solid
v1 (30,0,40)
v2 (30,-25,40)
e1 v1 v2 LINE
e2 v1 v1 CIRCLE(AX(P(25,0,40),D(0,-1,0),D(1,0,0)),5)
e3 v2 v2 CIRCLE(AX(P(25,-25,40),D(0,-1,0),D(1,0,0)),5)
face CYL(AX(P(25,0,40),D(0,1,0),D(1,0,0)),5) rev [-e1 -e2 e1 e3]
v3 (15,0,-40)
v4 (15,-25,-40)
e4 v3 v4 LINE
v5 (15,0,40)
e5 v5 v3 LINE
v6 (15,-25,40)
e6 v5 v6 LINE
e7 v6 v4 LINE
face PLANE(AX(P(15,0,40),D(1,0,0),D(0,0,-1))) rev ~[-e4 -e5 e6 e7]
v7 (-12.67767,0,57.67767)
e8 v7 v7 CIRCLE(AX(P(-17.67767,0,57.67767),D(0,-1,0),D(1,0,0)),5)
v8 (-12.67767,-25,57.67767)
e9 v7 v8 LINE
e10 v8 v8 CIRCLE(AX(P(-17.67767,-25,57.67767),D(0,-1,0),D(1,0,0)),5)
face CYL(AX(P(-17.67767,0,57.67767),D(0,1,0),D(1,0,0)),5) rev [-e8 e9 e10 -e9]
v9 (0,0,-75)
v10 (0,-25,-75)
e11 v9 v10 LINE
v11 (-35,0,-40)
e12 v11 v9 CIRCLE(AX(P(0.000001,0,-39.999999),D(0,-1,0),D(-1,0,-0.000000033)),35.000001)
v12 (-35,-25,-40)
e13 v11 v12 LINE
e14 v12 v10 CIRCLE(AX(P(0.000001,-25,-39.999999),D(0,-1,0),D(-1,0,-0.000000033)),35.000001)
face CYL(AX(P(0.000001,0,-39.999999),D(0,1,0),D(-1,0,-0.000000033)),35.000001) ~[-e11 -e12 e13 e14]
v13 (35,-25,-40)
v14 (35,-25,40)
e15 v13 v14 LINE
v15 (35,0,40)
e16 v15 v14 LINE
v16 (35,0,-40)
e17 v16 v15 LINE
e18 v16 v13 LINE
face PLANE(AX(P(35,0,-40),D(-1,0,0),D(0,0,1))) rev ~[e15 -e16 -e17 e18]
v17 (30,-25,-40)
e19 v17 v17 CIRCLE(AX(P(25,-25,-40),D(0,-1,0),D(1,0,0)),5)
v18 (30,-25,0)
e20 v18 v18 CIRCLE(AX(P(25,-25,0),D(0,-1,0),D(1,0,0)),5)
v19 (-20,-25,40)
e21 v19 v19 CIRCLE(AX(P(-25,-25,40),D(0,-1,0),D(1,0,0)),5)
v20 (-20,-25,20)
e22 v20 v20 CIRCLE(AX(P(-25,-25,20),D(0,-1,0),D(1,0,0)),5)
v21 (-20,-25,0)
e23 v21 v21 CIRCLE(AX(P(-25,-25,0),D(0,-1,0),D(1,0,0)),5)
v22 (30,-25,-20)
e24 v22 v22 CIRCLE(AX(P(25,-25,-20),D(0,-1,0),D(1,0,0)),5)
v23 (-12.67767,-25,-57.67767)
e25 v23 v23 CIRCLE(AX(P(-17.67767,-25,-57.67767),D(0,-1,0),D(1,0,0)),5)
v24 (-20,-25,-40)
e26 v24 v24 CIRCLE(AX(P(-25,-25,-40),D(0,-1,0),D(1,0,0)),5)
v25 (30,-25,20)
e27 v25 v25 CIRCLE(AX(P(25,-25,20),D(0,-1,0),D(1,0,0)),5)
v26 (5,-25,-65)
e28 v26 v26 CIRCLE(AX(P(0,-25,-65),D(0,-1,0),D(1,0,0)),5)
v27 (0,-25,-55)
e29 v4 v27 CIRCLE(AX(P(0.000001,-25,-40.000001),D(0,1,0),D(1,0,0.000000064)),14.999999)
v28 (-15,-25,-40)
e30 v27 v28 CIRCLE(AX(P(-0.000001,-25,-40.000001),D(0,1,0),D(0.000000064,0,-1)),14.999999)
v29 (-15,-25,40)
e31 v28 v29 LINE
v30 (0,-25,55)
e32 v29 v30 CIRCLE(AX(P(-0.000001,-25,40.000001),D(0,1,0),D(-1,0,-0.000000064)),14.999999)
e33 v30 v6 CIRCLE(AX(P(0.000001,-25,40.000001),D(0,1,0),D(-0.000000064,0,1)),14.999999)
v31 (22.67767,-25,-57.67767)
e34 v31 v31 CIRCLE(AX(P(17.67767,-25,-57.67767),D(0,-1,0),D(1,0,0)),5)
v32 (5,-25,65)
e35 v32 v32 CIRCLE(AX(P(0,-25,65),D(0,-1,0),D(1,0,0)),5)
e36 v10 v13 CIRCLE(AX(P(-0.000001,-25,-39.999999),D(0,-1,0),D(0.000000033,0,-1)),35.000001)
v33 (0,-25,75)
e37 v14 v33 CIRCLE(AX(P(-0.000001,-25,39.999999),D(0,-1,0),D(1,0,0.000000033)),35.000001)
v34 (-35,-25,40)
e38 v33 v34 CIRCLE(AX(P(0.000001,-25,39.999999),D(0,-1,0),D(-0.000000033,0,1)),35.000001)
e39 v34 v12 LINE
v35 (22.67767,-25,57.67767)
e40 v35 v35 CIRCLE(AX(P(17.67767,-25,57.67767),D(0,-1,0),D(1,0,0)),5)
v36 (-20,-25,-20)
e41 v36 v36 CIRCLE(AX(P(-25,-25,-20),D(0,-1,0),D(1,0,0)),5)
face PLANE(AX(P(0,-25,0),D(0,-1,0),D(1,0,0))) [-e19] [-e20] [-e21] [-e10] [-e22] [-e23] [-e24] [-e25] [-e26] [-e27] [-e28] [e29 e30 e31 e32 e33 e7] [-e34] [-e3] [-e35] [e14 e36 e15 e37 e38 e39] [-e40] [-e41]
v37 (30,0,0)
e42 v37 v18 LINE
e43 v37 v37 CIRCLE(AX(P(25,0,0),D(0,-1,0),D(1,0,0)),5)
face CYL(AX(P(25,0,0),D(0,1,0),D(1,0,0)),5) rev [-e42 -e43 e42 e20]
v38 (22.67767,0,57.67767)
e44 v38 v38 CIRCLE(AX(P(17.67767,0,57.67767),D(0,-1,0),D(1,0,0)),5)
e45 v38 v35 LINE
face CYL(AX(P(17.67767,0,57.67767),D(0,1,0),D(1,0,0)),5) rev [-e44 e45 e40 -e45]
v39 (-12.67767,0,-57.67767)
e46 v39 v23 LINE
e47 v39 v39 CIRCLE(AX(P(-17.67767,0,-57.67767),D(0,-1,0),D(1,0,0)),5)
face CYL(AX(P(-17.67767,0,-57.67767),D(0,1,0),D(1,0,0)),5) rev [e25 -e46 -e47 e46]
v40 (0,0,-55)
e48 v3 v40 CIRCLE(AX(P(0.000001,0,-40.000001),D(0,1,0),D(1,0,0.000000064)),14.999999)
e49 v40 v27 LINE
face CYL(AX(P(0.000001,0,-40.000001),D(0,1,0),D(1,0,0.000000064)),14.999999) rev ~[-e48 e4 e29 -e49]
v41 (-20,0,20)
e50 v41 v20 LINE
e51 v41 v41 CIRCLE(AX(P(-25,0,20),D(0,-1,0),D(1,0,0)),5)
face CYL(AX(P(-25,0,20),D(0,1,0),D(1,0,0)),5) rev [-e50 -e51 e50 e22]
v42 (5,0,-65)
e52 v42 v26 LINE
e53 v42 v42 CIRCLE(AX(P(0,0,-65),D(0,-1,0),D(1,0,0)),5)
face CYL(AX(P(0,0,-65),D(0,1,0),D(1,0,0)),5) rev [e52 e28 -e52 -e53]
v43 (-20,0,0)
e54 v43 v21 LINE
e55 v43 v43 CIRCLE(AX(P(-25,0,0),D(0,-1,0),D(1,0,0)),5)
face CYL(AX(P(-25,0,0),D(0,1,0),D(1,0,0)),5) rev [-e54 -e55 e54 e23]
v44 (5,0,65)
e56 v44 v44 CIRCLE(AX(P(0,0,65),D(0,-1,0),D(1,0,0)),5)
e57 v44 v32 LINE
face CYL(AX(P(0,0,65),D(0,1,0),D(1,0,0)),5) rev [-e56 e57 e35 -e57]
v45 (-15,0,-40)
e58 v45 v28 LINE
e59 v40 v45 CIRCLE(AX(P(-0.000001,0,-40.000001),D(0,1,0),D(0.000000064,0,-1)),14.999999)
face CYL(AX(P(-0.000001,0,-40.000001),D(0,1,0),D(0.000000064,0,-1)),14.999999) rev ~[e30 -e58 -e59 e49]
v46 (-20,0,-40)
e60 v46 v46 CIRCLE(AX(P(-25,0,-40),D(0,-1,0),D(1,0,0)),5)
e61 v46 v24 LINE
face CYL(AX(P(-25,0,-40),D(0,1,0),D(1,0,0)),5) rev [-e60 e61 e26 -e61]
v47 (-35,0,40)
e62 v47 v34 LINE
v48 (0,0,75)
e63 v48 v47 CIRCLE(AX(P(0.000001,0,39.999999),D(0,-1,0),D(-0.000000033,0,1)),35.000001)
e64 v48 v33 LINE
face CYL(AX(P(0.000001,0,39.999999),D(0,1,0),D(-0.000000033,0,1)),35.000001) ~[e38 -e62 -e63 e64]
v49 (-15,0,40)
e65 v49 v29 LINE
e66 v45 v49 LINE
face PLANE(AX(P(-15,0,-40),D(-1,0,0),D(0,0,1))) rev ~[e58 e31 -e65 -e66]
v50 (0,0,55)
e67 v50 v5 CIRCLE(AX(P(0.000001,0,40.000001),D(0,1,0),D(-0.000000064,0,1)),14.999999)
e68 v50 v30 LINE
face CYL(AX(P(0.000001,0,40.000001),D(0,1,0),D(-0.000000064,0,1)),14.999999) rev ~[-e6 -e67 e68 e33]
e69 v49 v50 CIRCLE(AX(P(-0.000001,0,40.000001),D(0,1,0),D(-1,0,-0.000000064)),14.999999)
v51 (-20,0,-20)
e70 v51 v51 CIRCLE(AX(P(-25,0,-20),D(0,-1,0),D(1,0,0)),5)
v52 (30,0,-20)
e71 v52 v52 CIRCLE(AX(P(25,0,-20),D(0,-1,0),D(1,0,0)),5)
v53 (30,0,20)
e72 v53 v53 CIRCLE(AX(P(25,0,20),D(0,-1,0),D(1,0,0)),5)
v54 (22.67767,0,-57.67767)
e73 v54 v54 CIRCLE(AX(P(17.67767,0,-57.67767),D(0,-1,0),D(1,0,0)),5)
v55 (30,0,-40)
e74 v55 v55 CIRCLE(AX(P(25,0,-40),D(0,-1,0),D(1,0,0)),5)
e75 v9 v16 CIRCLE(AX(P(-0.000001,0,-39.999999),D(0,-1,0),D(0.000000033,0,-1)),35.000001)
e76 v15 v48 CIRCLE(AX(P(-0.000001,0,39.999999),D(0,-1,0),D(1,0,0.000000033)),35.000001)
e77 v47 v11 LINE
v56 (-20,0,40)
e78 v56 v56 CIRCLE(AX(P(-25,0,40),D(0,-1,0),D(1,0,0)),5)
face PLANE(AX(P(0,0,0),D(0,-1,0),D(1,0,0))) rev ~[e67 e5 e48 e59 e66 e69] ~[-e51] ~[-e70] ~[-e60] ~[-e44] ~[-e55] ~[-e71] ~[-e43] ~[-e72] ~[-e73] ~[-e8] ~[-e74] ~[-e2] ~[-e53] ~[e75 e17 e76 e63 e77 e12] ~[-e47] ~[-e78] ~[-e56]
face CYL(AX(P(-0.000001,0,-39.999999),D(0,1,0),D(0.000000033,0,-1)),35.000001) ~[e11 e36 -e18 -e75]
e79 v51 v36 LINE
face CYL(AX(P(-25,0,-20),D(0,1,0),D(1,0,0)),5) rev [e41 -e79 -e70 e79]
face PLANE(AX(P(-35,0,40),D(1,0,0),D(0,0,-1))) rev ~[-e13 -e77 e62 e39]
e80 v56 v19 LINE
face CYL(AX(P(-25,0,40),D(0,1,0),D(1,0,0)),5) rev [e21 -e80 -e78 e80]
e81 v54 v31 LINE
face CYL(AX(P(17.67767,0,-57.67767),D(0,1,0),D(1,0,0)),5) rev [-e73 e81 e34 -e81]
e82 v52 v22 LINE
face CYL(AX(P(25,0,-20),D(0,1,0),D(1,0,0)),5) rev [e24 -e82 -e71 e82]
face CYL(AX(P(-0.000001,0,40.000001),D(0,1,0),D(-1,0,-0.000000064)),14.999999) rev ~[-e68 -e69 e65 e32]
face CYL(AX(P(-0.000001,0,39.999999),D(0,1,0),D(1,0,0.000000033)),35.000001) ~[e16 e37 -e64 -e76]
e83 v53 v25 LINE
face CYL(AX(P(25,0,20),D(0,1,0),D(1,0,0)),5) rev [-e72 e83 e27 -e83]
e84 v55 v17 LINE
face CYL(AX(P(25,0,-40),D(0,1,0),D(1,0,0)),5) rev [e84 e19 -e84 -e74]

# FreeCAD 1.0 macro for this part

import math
import FreeCAD as App
import Part
import Sketcher
from FreeCAD import Vector
Q = App.Units.Quantity

doc = App.newDocument("Part")
params = doc.addObject("Spreadsheet::Sheet", "Params")
for row, (alias, value) in enumerate([
    ("sketch1_diameter", "10 mm"),
    ("sketch1_radius", "35.000001 mm"),
    ("sketch1_radius2", "14.999999 mm"),
    ("sketch1_height", "80 mm"),
    ("pad1_length", "25 mm"),
], start=1):
    params.set(f"A{row}", alias)
    params.set(f"B{row}", "=" + value)
    params.setAlias(f"B{row}", alias)

body = doc.addObject("PartDesign::Body", "Body")

sketch1 = body.newObject("Sketcher::SketchObject", "Sketch")
sketch1.AttachmentSupport = (doc.getObject("XZ_Plane"), [""])
sketch1.MapMode = "FlatFace"
sketch1.addGeometry([
    Part.ArcOfCircle(Part.Circle(Vector(0, 40, 0), Vector(0, 0, 1), 35), math.radians(90), math.radians(180)),
    Part.LineSegment(Vector(-35, 40, 0), Vector(-35, -40, 0)),
    Part.ArcOfCircle(Part.Circle(Vector(0, -40, 0), Vector(0, 0, 1), 35), math.radians(-180), math.radians(-90)),
    Part.ArcOfCircle(Part.Circle(Vector(0, -40, 0), Vector(0, 0, 1), 35), math.radians(-90), math.radians(0)),
    Part.LineSegment(Vector(35, -40, 0), Vector(35, 40, 0)),
    Part.ArcOfCircle(Part.Circle(Vector(0, 40, 0), Vector(0, 0, 1), 35), math.radians(0), math.radians(90)),
    Part.Circle(Vector(-18, -58, 0), Vector(0, 0, 1), 5),
    Part.Circle(Vector(-25, -40, 0), Vector(0, 0, 1), 5),
    Part.Circle(Vector(-25, -20, 0), Vector(0, 0, 1), 5),
    Part.Circle(Vector(0, -65, 0), Vector(0, 0, 1), 5),
    Part.Circle(Vector(18, -58, 0), Vector(0, 0, 1), 5),
    Part.Circle(Vector(25, -40, 0), Vector(0, 0, 1), 5),
    Part.Circle(Vector(25, -20, 0), Vector(0, 0, 1), 5),
    Part.Circle(Vector(-25, 0, 0), Vector(0, 0, 1), 5),
    Part.Circle(Vector(-25, 20, 0), Vector(0, 0, 1), 5),
    Part.Circle(Vector(-25, 40, 0), Vector(0, 0, 1), 5),
    Part.Circle(Vector(-18, 58, 0), Vector(0, 0, 1), 5),
    Part.LineSegment(Vector(-15, -40, 0), Vector(-15, 40, 0)),
    Part.ArcOfCircle(Part.Circle(Vector(0, 40, 0), Vector(0, 0, 1), 15), math.radians(90), math.radians(180)),
    Part.ArcOfCircle(Part.Circle(Vector(0, 40, 0), Vector(0, 0, 1), 15), math.radians(0), math.radians(90)),
    Part.LineSegment(Vector(15, 40, 0), Vector(15, -40, 0)),
    Part.ArcOfCircle(Part.Circle(Vector(0, -40, 0), Vector(0, 0, 1), 15), math.radians(-90), math.radians(0)),
    Part.ArcOfCircle(Part.Circle(Vector(0, -40, 0), Vector(0, 0, 1), 15), math.radians(180), math.radians(270)),
    Part.Circle(Vector(25, 0, 0), Vector(0, 0, 1), 5),
    Part.Circle(Vector(25, 20, 0), Vector(0, 0, 1), 5),
    Part.Circle(Vector(0, 65, 0), Vector(0, 0, 1), 5),
    Part.Circle(Vector(25, 40, 0), Vector(0, 0, 1), 5),
    Part.Circle(Vector(18, 58, 0), Vector(0, 0, 1), 5),
], False)
sketch1.addConstraint([
    Sketcher.Constraint("Tangent", 0, 2, 1, 1),
    Sketcher.Constraint("Tangent", 1, 2, 2, 1),
    Sketcher.Constraint("Tangent", 2, 2, 3, 1),
    Sketcher.Constraint("Tangent", 3, 2, 4, 1),
    Sketcher.Constraint("Tangent", 4, 2, 5, 1),
    Sketcher.Constraint("Tangent", 5, 2, 0, 1),
    Sketcher.Constraint("Tangent", 17, 2, 18, 2),
    Sketcher.Constraint("Tangent", 18, 1, 19, 2),
    Sketcher.Constraint("Tangent", 19, 1, 20, 1),
    Sketcher.Constraint("Tangent", 20, 2, 21, 2),
    Sketcher.Constraint("Tangent", 21, 1, 22, 2),
    Sketcher.Constraint("Tangent", 22, 1, 17, 1),
    Sketcher.Constraint("Vertical", 1),
    Sketcher.Constraint("Vertical", 4),
    Sketcher.Constraint("Vertical", 17),
    Sketcher.Constraint("Vertical", 20),
    Sketcher.Constraint("Coincident", 18, 3, 0, 3),
    Sketcher.Constraint("Coincident", 21, 3, 2, 3),
    Sketcher.Constraint("Equal", 0, 2),
    Sketcher.Constraint("Equal", 2, 3),
    Sketcher.Constraint("Equal", 6, 7),
    Sketcher.Constraint("Equal", 7, 8),
    Sketcher.Constraint("Equal", 8, 9),
    Sketcher.Constraint("Equal", 9, 10),
    Sketcher.Constraint("Equal", 10, 11),
    Sketcher.Constraint("Equal", 11, 12),
    Sketcher.Constraint("Equal", 12, 13),
    Sketcher.Constraint("Equal", 13, 14),
    Sketcher.Constraint("Equal", 14, 15),
    Sketcher.Constraint("Equal", 15, 16),
    Sketcher.Constraint("Equal", 18, 19),
    Sketcher.Constraint("Equal", 16, 23),
    Sketcher.Constraint("Equal", 23, 24),
    Sketcher.Constraint("Equal", 24, 25),
    Sketcher.Constraint("Equal", 25, 26),
    Sketcher.Constraint("Equal", 26, 27),
    Sketcher.Constraint("Symmetric", 0, 3, 2, 3, -1, 1),
    Sketcher.Constraint("Symmetric", 12, 3, 14, 3, -1, 1),
    Sketcher.Constraint("Symmetric", 11, 3, 15, 3, -1, 1),
    Sketcher.Constraint("Symmetric", 10, 3, 16, 3, -1, 1),
    Sketcher.Constraint("Symmetric", 13, 3, 23, 3, -1, 1),
    Sketcher.Constraint("Symmetric", 8, 3, 24, 3, -1, 1),
    Sketcher.Constraint("Symmetric", 9, 3, 25, 3, -1, 1),
    Sketcher.Constraint("Symmetric", 7, 3, 26, 3, -1, 1),
    Sketcher.Constraint("Symmetric", 6, 3, 27, 3, -1, 1),
    Sketcher.Constraint("Symmetric", 6, 3, 10, 3, -2),
    Sketcher.Constraint("Symmetric", 7, 3, 11, 3, -2),
    Sketcher.Constraint("Symmetric", 8, 3, 12, 3, -2),
    Sketcher.Constraint("PointOnObject", 9, 3, -2),
    Sketcher.Constraint("PointOnObject", 13, 3, -1),
    Sketcher.Constraint("PointOnObject", 2, 2, -2),
    Sketcher.Constraint("PointOnObject", 5, 2, -2),
    Sketcher.Constraint("PointOnObject", 18, 1, -2),
    Sketcher.Constraint("PointOnObject", 21, 1, -2),
    Sketcher.Constraint("Horizontal", 3, 3, 7, 3),
    Sketcher.Constraint("Vertical", 7, 3, 8, 3),
    Sketcher.Constraint("Vertical", 8, 3, 13, 3),
    Sketcher.Constraint("Diameter", 6, Q("10 mm")),
    Sketcher.Constraint("Radius", 0, Q("35.000001 mm")),
    Sketcher.Constraint("Radius", 18, Q("14.999999 mm")),
    Sketcher.Constraint("DistanceY", 1, 2, 1, 1, Q("80 mm")),
    Sketcher.Constraint("DistanceX", 7, 3, -1, 1, Q("25 mm")),
    Sketcher.Constraint("DistanceY", 8, 3, -1, 1, Q("20 mm")),
    Sketcher.Constraint("DistanceY", 9, 3, -1, 1, Q("65 mm")),
    Sketcher.Constraint("DistanceX", 6, 3, -1, 1, Q("17.67767 mm")),
    Sketcher.Constraint("DistanceY", 6, 3, -1, 1, Q("57.67767 mm")),
])
sketch1.setExpression("Constraints[57]", "Params.sketch1_diameter")
sketch1.setExpression("Constraints[58]", "Params.sketch1_radius")
sketch1.setExpression("Constraints[59]", "Params.sketch1_radius2")
sketch1.setExpression("Constraints[60]", "Params.sketch1_height")
pad1 = body.newObject("PartDesign::Pad", "Pad")
pad1.Profile = sketch1
pad1.setExpression("Length", "Params.pad1_length")

doc.recompute()
